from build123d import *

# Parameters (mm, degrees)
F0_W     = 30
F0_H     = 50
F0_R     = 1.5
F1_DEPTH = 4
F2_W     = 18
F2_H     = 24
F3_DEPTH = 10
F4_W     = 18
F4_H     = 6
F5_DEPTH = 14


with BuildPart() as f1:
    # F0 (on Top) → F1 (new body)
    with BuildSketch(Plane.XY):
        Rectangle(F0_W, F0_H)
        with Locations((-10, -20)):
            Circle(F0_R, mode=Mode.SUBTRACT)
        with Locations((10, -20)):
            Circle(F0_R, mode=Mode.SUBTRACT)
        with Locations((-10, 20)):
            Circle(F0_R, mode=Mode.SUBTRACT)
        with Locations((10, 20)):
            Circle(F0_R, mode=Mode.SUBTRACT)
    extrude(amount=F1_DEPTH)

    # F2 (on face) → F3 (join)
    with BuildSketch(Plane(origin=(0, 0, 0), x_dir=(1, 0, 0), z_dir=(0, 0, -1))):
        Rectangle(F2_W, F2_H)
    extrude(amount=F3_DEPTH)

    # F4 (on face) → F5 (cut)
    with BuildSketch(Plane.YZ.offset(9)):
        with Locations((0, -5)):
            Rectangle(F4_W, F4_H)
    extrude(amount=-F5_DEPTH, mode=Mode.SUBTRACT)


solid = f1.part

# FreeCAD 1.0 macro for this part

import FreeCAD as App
import Part
import Sketcher

V = App.Vector

doc = App.newDocument("Part")
body = doc.addObject("PartDesign::Body", "Body")

# Sketch on XY plane
sketch1 = body.newObject("Sketcher::SketchObject", "Sketch")
sketch1.AttachmentSupport = (doc.getObject("XY_Plane"), [""])
sketch1.MapMode = "FlatFace"
sketch1.addGeometry([
    Part.LineSegment(V(-15, 25, 0), V(-15, -25, 0)),  # 0
    Part.LineSegment(V(-15, -25, 0), V(15, -25, 0)),  # 1
    Part.LineSegment(V(15, -25, 0), V(15, 25, 0)),  # 2
    Part.LineSegment(V(15, 25, 0), V(-15, 25, 0)),  # 3
    Part.Circle(V(-10, -20, 0), V(0, 0, 1), 1.5),  # 4
    Part.Circle(V(10, -20, 0), V(0, 0, 1), 1.5),  # 5
    Part.Circle(V(-10, 20, 0), V(0, 0, 1), 1.5),  # 6
    Part.Circle(V(10, 20, 0), V(0, 0, 1), 1.5),  # 7
], False)
sketch1.addConstraint([
    Sketcher.Constraint("Coincident", 0, 2, 1, 1),
    Sketcher.Constraint("Coincident", 1, 2, 2, 1),
    Sketcher.Constraint("Coincident", 2, 2, 3, 1),
    Sketcher.Constraint("Coincident", 3, 2, 0, 1),
    Sketcher.Constraint("Vertical", 0),
    Sketcher.Constraint("Horizontal", 1),
    Sketcher.Constraint("Vertical", 2),
    Sketcher.Constraint("Horizontal", 3),
    Sketcher.Constraint("Equal", 4, 5),
    Sketcher.Constraint("Equal", 5, 6),
    Sketcher.Constraint("Equal", 6, 7),
    Sketcher.Constraint("Symmetric", 5, 3, 6, 3, -1, 1),
    Sketcher.Constraint("Symmetric", 4, 3, 7, 3, -1, 1),
    Sketcher.Constraint("Symmetric", 0, 2, 2, 2, -1, 1),
    Sketcher.Constraint("Symmetric", 4, 3, 5, 3, -2),
    Sketcher.Constraint("Diameter", 4, 3.0),
    Sketcher.Constraint("DistanceX", 1, 1, 1, 2, 30.0),
    Sketcher.Constraint("DistanceY", 0, 2, 0, 1, 50.0),
    Sketcher.Constraint("DistanceX", 4, 3, -1, 1, 10.0),
    Sketcher.Constraint("DistanceY", 4, 3, -1, 1, 20.0),
])
pad1 = body.newObject("PartDesign::Pad", "Pad")
pad1.Profile = sketch1
pad1.Length = 4

# Sketch on XY plane
sketch2 = body.newObject("Sketcher::SketchObject", "Sketch001")
sketch2.AttachmentSupport = (doc.getObject("XY_Plane"), [""])
sketch2.MapMode = "FlatFace"
sketch2.addGeometry([
    Part.LineSegment(V(-9, -12, 0), V(-9, 12, 0)),
    Part.LineSegment(V(-9, 12, 0), V(9, 12, 0)),
    Part.LineSegment(V(9, 12, 0), V(9, -12, 0)),
    Part.LineSegment(V(9, -12, 0), V(-9, -12, 0)),
], False)
sketch2.addConstraint([
    Sketcher.Constraint("Coincident", 0, 2, 1, 1),
    Sketcher.Constraint("Coincident", 1, 2, 2, 1),
    Sketcher.Constraint("Coincident", 2, 2, 3, 1),
    Sketcher.Constraint("Coincident", 3, 2, 0, 1),
    Sketcher.Constraint("Vertical", 0),
    Sketcher.Constraint("Horizontal", 1),
    Sketcher.Constraint("Vertical", 2),
    Sketcher.Constraint("Horizontal", 3),
    Sketcher.Constraint("Symmetric", 0, 2, 2, 2, -1, 1),
    Sketcher.Constraint("DistanceX", 1, 1, 1, 2, 18.0),
    Sketcher.Constraint("DistanceY", 0, 1, 0, 2, 24.0),
])
pad2 = body.newObject("PartDesign::Pad", "Pad001")
pad2.Profile = sketch2
pad2.Length = 10
pad2.Reversed = True

# Sketch on YZ plane
sketch3 = body.newObject("Sketcher::SketchObject", "Sketch002")
sketch3.AttachmentSupport = (doc.getObject("YZ_Plane"), [""])
sketch3.MapMode = "FlatFace"
sketch3.AttachmentOffset = App.Placement(V(0, 0, 9), App.Rotation())
sketch3.addGeometry([
    Part.LineSegment(V(-9, -2, 0), V(-9, -8, 0)),
    Part.LineSegment(V(-9, -8, 0), V(9, -8, 0)),
    Part.LineSegment(V(9, -8, 0), V(9, -2, 0)),
    Part.LineSegment(V(9, -2, 0), V(-9, -2, 0)),
], False)
sketch3.addConstraint([
    Sketcher.Constraint("Coincident", 0, 2, 1, 1),
    Sketcher.Constraint("Coincident", 1, 2, 2, 1),
    Sketcher.Constraint("Coincident", 2, 2, 3, 1),
    Sketcher.Constraint("Coincident", 3, 2, 0, 1),
    Sketcher.Constraint("Vertical", 0),
    Sketcher.Constraint("Horizontal", 1),
    Sketcher.Constraint("Vertical", 2),
    Sketcher.Constraint("Horizontal", 3),
    Sketcher.Constraint("DistanceX", 1, 1, 1, 2, 18.0),
    Sketcher.Constraint("DistanceY", 0, 2, 0, 1, 6.0),
    Sketcher.Constraint("DistanceX", 0, 2, -1, 1, 9.0),
    Sketcher.Constraint("DistanceY", 0, 2, -1, 1, 8.0),
])
pocket1 = body.newObject("PartDesign::Pocket", "Pocket")
pocket1.Profile = sketch3
pocket1.Length = 14

doc.recompute()
